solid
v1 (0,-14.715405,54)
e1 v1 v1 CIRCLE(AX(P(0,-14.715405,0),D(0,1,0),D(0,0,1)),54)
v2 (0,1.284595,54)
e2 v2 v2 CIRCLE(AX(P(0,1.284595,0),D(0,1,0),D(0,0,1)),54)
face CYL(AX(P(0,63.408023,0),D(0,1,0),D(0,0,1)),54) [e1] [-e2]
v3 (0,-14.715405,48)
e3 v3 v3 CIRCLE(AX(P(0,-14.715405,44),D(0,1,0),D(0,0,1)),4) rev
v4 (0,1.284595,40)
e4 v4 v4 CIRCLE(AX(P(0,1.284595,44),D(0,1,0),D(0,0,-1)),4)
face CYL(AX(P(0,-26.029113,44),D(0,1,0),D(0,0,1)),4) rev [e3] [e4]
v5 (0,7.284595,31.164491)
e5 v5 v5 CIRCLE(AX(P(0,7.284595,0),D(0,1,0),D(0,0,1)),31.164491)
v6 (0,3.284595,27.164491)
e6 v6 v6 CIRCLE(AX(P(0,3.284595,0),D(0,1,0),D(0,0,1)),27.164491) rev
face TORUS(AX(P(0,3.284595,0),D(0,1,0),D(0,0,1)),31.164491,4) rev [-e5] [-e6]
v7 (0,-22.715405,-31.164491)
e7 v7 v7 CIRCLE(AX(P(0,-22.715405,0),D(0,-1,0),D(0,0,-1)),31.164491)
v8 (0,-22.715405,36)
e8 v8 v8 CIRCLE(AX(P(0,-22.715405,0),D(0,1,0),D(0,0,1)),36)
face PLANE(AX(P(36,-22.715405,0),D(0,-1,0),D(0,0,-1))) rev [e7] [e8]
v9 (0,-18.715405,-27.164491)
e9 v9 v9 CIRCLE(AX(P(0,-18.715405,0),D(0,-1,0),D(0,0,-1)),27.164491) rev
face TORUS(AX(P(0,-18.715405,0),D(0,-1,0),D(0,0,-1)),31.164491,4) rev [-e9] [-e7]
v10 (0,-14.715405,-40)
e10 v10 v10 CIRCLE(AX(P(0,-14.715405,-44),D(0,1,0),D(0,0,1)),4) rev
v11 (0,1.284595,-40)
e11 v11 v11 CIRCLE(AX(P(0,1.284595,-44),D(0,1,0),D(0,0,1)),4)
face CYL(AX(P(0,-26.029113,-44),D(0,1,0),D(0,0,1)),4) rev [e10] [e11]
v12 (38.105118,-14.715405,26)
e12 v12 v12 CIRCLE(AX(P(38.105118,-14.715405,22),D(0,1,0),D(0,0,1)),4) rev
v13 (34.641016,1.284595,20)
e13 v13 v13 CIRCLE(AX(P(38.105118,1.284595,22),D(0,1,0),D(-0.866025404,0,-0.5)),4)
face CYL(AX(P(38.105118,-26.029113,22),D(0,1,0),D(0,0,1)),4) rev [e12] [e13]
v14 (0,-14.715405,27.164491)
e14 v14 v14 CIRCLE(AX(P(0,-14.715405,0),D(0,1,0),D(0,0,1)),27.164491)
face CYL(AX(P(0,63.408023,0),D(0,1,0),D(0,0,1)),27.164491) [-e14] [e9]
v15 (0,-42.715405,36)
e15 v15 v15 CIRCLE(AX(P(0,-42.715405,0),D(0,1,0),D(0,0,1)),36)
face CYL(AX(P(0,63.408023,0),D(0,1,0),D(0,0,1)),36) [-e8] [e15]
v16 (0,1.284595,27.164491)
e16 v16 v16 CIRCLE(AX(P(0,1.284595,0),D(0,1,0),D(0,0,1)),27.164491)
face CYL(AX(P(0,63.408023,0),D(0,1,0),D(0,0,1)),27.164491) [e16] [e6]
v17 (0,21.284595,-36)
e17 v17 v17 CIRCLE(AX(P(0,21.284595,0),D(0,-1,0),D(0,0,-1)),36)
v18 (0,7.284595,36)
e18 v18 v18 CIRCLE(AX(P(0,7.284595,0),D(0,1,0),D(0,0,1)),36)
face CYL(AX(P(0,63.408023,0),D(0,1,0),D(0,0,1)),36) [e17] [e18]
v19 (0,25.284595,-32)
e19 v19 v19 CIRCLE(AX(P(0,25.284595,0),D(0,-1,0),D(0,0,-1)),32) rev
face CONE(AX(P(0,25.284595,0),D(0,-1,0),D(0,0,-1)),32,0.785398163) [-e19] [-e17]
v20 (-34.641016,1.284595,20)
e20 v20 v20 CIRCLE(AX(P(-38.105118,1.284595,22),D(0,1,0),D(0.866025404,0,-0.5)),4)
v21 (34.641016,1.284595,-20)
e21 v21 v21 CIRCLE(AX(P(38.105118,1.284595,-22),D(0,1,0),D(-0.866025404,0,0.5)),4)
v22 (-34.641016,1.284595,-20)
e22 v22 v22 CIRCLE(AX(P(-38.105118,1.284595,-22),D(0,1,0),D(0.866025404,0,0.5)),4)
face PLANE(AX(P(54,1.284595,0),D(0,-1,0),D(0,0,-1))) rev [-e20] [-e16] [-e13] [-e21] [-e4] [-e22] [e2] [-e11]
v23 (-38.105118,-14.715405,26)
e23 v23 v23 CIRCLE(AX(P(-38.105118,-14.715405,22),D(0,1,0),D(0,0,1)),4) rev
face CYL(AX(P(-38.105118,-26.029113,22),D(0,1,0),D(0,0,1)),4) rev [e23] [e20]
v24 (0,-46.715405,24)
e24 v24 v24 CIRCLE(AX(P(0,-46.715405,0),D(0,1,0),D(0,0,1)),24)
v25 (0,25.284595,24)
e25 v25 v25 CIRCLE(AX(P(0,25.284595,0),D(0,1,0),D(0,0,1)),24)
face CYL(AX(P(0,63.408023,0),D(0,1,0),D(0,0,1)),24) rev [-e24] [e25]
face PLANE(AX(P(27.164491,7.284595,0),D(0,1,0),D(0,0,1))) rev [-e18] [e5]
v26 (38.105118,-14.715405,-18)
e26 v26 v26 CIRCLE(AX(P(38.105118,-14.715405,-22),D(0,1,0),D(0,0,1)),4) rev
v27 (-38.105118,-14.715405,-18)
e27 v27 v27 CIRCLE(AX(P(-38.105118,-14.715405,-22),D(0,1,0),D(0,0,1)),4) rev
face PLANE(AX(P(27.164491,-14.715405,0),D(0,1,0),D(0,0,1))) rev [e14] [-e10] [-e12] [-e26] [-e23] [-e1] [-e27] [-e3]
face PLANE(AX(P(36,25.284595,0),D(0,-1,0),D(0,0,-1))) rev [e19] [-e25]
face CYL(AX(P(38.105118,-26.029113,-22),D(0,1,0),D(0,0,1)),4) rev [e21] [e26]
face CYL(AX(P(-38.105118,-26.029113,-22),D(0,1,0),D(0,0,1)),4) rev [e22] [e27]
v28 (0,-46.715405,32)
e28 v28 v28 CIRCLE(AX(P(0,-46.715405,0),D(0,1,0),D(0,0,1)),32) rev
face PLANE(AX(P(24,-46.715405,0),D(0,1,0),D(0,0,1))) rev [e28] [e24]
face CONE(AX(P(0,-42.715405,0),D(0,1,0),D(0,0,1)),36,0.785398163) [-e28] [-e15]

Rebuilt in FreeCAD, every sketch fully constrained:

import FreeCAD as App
import Part
import Sketcher
from FreeCAD import Vector


def edges_at(feature, points):
    """Names of the edges that pass closest to the given points."""
    edges = feature.Shape.Edges
    near = lambda p: min(range(len(edges)), key=lambda i: edges[i].distToShape(Part.Vertex(*p))[0])
    return sorted({f"Edge{near(p) + 1}" for p in points})

doc = App.newDocument("Part")
body = doc.addObject("PartDesign::Body", "Body")

sketch1 = body.newObject("Sketcher::SketchObject", "Sketch")
sketch1.AttachmentSupport = (doc.getObject("XY_Plane"), [""])
sketch1.MapMode = "FlatFace"
sketch1.addGeometry(Part.LineSegment(Vector(24, -47, 0), Vector(36, -47, 0)), False)
sketch1.addGeometry(Part.LineSegment(Vector(36, -47, 0), Vector(36, -23, 0)), False)
sketch1.addGeometry(Part.LineSegment(Vector(36, -23, 0), Vector(27, -23, 0)), False)
sketch1.addGeometry(Part.LineSegment(Vector(27, -23, 0), Vector(27, -15, 0)), False)
sketch1.addGeometry(Part.LineSegment(Vector(27, -15, 0), Vector(54, -15, 0)), False)
sketch1.addGeometry(Part.LineSegment(Vector(54, -15, 0), Vector(54, 1, 0)), False)
sketch1.addGeometry(Part.LineSegment(Vector(54, 1, 0), Vector(27, 1, 0)), False)
sketch1.addGeometry(Part.LineSegment(Vector(27, 1, 0), Vector(27, 7, 0)), False)
sketch1.addGeometry(Part.LineSegment(Vector(27, 7, 0), Vector(36, 7, 0)), False)
sketch1.addGeometry(Part.LineSegment(Vector(36, 7, 0), Vector(36, 25, 0)), False)
sketch1.addGeometry(Part.LineSegment(Vector(36, 25, 0), Vector(24, 25, 0)), False)
sketch1.addGeometry(Part.LineSegment(Vector(24, 25, 0), Vector(24, -47, 0)), False)
sketch1.addConstraint(Sketcher.Constraint("Coincident", 0, 2, 1, 1))
sketch1.addConstraint(Sketcher.Constraint("Coincident", 1, 2, 2, 1))
sketch1.addConstraint(Sketcher.Constraint("Coincident", 2, 2, 3, 1))
sketch1.addConstraint(Sketcher.Constraint("Coincident", 3, 2, 4, 1))
sketch1.addConstraint(Sketcher.Constraint("Coincident", 4, 2, 5, 1))
sketch1.addConstraint(Sketcher.Constraint("Coincident", 5, 2, 6, 1))
sketch1.addConstraint(Sketcher.Constraint("Coincident", 6, 2, 7, 1))
sketch1.addConstraint(Sketcher.Constraint("Coincident", 7, 2, 8, 1))
sketch1.addConstraint(Sketcher.Constraint("Coincident", 8, 2, 9, 1))
sketch1.addConstraint(Sketcher.Constraint("Coincident", 9, 2, 10, 1))
sketch1.addConstraint(Sketcher.Constraint("Coincident", 10, 2, 11, 1))
sketch1.addConstraint(Sketcher.Constraint("Coincident", 11, 2, 0, 1))
sketch1.addConstraint(Sketcher.Constraint("Horizontal", 0))
sketch1.addConstraint(Sketcher.Constraint("Vertical", 1))
sketch1.addConstraint(Sketcher.Constraint("Horizontal", 2))
sketch1.addConstraint(Sketcher.Constraint("Vertical", 3))
sketch1.addConstraint(Sketcher.Constraint("Horizontal", 4))
sketch1.addConstraint(Sketcher.Constraint("Vertical", 5))
sketch1.addConstraint(Sketcher.Constraint("Horizontal", 6))
sketch1.addConstraint(Sketcher.Constraint("Vertical", 7))
sketch1.addConstraint(Sketcher.Constraint("Horizontal", 8))
sketch1.addConstraint(Sketcher.Constraint("Vertical", 9))
sketch1.addConstraint(Sketcher.Constraint("Horizontal", 10))
sketch1.addConstraint(Sketcher.Constraint("Vertical", 11))
sketch1.addConstraint(Sketcher.Constraint("Vertical", 3, 2, 6, 2))
sketch1.addConstraint(Sketcher.Constraint("Vertical", 1, 2, 8, 2))
sketch1.addConstraint(Sketcher.Constraint("DistanceX", 0, 1, 0, 2, 12.0))
sketch1.addConstraint(Sketcher.Constraint("DistanceY", 1, 1, 1, 2, 24.0))
sketch1.addConstraint(Sketcher.Constraint("DistanceY", 3, 1, 3, 2, 8.0))
sketch1.addConstraint(Sketcher.Constraint("DistanceY", 5, 1, 5, 2, 16.0))
sketch1.addConstraint(Sketcher.Constraint("DistanceY", 7, 1, 7, 2, 6.0))
sketch1.addConstraint(Sketcher.Constraint("DistanceY", 9, 1, 9, 2, 18.0))
sketch1.addConstraint(Sketcher.Constraint("DistanceX", -1, 1, 0, 2, 36.0))
sketch1.addConstraint(Sketcher.Constraint("DistanceX", -1, 1, 4, 2, 54.0))
sketch1.addConstraint(Sketcher.Constraint("DistanceX", 2, 2, 2, 1, 8.835509))
sketch1.addConstraint(Sketcher.Constraint("DistanceY", 0, 2, -1, 1, 46.715405))
revolution = body.newObject("PartDesign::Revolution", "Revolution")
revolution.Profile = sketch1
revolution.ReferenceAxis = (sketch1, ["V_Axis"])
revolution.Angle = 360

sketch2 = body.newObject("Sketcher::SketchObject", "Sketch001")
sketch2.AttachmentSupport = (doc.getObject("XZ_Plane"), [""])
sketch2.MapMode = "FlatFace"
sketch2.AttachmentOffset = App.Placement(Vector(0, 0, -1.284595), App.Rotation())
sketch2.addGeometry(Part.Circle(Vector(0, -44, 0), Vector(0, 0, 1), 4), False)
sketch2.addConstraint(Sketcher.Constraint("PointOnObject", 0, 3, -2))
sketch2.addConstraint(Sketcher.Constraint("Diameter", 0, 8.0))
sketch2.addConstraint(Sketcher.Constraint("DistanceY", 0, 3, -1, 1, 44.0))
pocket1 = body.newObject("PartDesign::Pocket", "Pocket")
pocket1.Profile = sketch2
pocket1.Length = 16
pocket1.Reversed = True
doc.recompute()

polarpattern = body.newObject("PartDesign::PolarPattern", "PolarPattern")
polarpattern.Originals = [pocket1]
polarpattern.Axis = (doc.getObject("Y_Axis"), [""])
polarpattern.Angle = 360
polarpattern.Occurrences = 6
body.Tip = polarpattern
doc.recompute()

chamfer = body.newObject("PartDesign::Chamfer", "Chamfer")
chamfer.Base = (polarpattern, edges_at(polarpattern, [(0, 25.285, -36)]))
chamfer.Size = 4
doc.recompute()

chamfer2 = body.newObject("PartDesign::Chamfer", "Chamfer001")
chamfer2.Base = (chamfer, edges_at(chamfer, [(0, -46.715, -36)]))
chamfer2.Size = 4
doc.recompute()

fillet = body.newObject("PartDesign::Fillet", "Fillet")
fillet.Base = (chamfer2, edges_at(chamfer2, [(0, -22.715, -27.164)]))
fillet.Radius = 4
doc.recompute()

fillet2 = body.newObject("PartDesign::Fillet", "Fillet001")
fillet2.Base = (fillet, edges_at(fillet, [(0, 7.285, -27.164)]))
fillet2.Radius = 4

doc.recompute()
